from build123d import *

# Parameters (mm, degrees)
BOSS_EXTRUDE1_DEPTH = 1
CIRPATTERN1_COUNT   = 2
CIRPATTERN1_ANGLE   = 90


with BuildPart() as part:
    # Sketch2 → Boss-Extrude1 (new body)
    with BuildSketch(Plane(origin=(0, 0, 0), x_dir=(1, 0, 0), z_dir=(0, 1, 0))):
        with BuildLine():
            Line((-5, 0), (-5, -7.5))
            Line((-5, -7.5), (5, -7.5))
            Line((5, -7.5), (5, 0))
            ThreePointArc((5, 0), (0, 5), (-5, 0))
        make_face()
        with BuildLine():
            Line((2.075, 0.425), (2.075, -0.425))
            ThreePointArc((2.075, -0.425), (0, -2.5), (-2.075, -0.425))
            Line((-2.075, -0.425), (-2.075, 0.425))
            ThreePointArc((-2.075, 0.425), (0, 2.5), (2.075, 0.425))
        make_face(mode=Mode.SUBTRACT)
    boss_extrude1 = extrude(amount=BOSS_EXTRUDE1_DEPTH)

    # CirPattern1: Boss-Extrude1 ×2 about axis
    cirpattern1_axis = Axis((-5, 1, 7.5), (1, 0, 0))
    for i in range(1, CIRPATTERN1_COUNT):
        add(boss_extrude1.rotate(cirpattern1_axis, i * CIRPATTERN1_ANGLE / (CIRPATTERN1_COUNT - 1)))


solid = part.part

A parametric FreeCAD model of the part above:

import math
import FreeCAD as App
import Part
import Sketcher

doc = App.newDocument("Part")
body = doc.addObject("PartDesign::Body", "Body")

sketch1 = body.newObject("Sketcher::SketchObject", "Sketch")
sketch1.AttachmentSupport = (doc.getObject("XZ_Plane"), [""])
sketch1.MapMode = "FlatFace"
sketch1.addGeometry(Part.LineSegment(App.Vector(-5, 0, 0), App.Vector(-5, 7.5, 0)), False)
sketch1.addGeometry(Part.LineSegment(App.Vector(-5, 7.5, 0), App.Vector(5, 7.5, 0)), False)
sketch1.addGeometry(Part.LineSegment(App.Vector(5, 7.5, 0), App.Vector(5, 0, 0)), False)
sketch1.addGeometry(Part.ArcOfCircle(Part.Circle(App.Vector(0, 0, 0), App.Vector(0, 0, 1), 5), math.radians(180), math.radians(360)), False)
sketch1.addGeometry(Part.ArcOfCircle(Part.Circle(App.Vector(0, -0.4, 0), App.Vector(0, 0, 1), 2.1), math.radians(180), math.radians(360)), False)
sketch1.addGeometry(Part.LineSegment(App.Vector(2.1, -0.4, 0), App.Vector(2.1, 0.4, 0)), False)
sketch1.addGeometry(Part.ArcOfCircle(Part.Circle(App.Vector(0, 0.4, 0), App.Vector(0, 0, 1), 2.1), math.radians(0), math.radians(180)), False)
sketch1.addGeometry(Part.LineSegment(App.Vector(-2.1, 0.4, 0), App.Vector(-2.1, -0.4, 0)), False)
sketch1.addConstraint(Sketcher.Constraint("Coincident", 0, 2, 1, 1))
sketch1.addConstraint(Sketcher.Constraint("Coincident", 1, 2, 2, 1))
sketch1.addConstraint(Sketcher.Constraint("Tangent", 2, 2, 3, 2))
sketch1.addConstraint(Sketcher.Constraint("Tangent", 3, 1, 0, 1))
sketch1.addConstraint(Sketcher.Constraint("Tangent", 4, 2, 5, 1))
sketch1.addConstraint(Sketcher.Constraint("Tangent", 5, 2, 6, 1))
sketch1.addConstraint(Sketcher.Constraint("Tangent", 6, 2, 7, 1))
sketch1.addConstraint(Sketcher.Constraint("Tangent", 7, 2, 4, 1))
sketch1.addConstraint(Sketcher.Constraint("Vertical", 0))
sketch1.addConstraint(Sketcher.Constraint("Horizontal", 1))
sketch1.addConstraint(Sketcher.Constraint("Vertical", 2))
sketch1.addConstraint(Sketcher.Constraint("Vertical", 5))
sketch1.addConstraint(Sketcher.Constraint("Vertical", 7))
sketch1.addConstraint(Sketcher.Constraint("Coincident", 3, 3, -1, 1))
sketch1.addConstraint(Sketcher.Constraint("Symmetric", 4, 3, 6, 3, -1, 1))
sketch1.addConstraint(Sketcher.Constraint("Radius", 3, 5.0))
sketch1.addConstraint(Sketcher.Constraint("DistanceY", 0, 1, 0, 2, 7.5))
sketch1.addConstraint(Sketcher.Constraint("Radius", 4, 2.075))
sketch1.addConstraint(Sketcher.Constraint("DistanceY", 5, 1, 5, 2, 0.85))
pad1 = body.newObject("PartDesign::Pad", "Pad")
pad1.Profile = sketch1
pad1.Length = 1
pad1.Reversed = True
doc.recompute()

datumline = body.newObject("PartDesign::Line", "DatumLine")
datumline.Placement = App.Placement(App.Vector(0, 1, 7.5), App.Rotation(App.Vector(0, 0, 1), App.Vector(1, 0, 0)))
polarpattern = body.newObject("PartDesign::PolarPattern", "PolarPattern")
polarpattern.Originals = [pad1]
polarpattern.Axis = (datumline, [""])
polarpattern.Angle = 90
polarpattern.Occurrences = 2
body.Tip = polarpattern

doc.recompute()
